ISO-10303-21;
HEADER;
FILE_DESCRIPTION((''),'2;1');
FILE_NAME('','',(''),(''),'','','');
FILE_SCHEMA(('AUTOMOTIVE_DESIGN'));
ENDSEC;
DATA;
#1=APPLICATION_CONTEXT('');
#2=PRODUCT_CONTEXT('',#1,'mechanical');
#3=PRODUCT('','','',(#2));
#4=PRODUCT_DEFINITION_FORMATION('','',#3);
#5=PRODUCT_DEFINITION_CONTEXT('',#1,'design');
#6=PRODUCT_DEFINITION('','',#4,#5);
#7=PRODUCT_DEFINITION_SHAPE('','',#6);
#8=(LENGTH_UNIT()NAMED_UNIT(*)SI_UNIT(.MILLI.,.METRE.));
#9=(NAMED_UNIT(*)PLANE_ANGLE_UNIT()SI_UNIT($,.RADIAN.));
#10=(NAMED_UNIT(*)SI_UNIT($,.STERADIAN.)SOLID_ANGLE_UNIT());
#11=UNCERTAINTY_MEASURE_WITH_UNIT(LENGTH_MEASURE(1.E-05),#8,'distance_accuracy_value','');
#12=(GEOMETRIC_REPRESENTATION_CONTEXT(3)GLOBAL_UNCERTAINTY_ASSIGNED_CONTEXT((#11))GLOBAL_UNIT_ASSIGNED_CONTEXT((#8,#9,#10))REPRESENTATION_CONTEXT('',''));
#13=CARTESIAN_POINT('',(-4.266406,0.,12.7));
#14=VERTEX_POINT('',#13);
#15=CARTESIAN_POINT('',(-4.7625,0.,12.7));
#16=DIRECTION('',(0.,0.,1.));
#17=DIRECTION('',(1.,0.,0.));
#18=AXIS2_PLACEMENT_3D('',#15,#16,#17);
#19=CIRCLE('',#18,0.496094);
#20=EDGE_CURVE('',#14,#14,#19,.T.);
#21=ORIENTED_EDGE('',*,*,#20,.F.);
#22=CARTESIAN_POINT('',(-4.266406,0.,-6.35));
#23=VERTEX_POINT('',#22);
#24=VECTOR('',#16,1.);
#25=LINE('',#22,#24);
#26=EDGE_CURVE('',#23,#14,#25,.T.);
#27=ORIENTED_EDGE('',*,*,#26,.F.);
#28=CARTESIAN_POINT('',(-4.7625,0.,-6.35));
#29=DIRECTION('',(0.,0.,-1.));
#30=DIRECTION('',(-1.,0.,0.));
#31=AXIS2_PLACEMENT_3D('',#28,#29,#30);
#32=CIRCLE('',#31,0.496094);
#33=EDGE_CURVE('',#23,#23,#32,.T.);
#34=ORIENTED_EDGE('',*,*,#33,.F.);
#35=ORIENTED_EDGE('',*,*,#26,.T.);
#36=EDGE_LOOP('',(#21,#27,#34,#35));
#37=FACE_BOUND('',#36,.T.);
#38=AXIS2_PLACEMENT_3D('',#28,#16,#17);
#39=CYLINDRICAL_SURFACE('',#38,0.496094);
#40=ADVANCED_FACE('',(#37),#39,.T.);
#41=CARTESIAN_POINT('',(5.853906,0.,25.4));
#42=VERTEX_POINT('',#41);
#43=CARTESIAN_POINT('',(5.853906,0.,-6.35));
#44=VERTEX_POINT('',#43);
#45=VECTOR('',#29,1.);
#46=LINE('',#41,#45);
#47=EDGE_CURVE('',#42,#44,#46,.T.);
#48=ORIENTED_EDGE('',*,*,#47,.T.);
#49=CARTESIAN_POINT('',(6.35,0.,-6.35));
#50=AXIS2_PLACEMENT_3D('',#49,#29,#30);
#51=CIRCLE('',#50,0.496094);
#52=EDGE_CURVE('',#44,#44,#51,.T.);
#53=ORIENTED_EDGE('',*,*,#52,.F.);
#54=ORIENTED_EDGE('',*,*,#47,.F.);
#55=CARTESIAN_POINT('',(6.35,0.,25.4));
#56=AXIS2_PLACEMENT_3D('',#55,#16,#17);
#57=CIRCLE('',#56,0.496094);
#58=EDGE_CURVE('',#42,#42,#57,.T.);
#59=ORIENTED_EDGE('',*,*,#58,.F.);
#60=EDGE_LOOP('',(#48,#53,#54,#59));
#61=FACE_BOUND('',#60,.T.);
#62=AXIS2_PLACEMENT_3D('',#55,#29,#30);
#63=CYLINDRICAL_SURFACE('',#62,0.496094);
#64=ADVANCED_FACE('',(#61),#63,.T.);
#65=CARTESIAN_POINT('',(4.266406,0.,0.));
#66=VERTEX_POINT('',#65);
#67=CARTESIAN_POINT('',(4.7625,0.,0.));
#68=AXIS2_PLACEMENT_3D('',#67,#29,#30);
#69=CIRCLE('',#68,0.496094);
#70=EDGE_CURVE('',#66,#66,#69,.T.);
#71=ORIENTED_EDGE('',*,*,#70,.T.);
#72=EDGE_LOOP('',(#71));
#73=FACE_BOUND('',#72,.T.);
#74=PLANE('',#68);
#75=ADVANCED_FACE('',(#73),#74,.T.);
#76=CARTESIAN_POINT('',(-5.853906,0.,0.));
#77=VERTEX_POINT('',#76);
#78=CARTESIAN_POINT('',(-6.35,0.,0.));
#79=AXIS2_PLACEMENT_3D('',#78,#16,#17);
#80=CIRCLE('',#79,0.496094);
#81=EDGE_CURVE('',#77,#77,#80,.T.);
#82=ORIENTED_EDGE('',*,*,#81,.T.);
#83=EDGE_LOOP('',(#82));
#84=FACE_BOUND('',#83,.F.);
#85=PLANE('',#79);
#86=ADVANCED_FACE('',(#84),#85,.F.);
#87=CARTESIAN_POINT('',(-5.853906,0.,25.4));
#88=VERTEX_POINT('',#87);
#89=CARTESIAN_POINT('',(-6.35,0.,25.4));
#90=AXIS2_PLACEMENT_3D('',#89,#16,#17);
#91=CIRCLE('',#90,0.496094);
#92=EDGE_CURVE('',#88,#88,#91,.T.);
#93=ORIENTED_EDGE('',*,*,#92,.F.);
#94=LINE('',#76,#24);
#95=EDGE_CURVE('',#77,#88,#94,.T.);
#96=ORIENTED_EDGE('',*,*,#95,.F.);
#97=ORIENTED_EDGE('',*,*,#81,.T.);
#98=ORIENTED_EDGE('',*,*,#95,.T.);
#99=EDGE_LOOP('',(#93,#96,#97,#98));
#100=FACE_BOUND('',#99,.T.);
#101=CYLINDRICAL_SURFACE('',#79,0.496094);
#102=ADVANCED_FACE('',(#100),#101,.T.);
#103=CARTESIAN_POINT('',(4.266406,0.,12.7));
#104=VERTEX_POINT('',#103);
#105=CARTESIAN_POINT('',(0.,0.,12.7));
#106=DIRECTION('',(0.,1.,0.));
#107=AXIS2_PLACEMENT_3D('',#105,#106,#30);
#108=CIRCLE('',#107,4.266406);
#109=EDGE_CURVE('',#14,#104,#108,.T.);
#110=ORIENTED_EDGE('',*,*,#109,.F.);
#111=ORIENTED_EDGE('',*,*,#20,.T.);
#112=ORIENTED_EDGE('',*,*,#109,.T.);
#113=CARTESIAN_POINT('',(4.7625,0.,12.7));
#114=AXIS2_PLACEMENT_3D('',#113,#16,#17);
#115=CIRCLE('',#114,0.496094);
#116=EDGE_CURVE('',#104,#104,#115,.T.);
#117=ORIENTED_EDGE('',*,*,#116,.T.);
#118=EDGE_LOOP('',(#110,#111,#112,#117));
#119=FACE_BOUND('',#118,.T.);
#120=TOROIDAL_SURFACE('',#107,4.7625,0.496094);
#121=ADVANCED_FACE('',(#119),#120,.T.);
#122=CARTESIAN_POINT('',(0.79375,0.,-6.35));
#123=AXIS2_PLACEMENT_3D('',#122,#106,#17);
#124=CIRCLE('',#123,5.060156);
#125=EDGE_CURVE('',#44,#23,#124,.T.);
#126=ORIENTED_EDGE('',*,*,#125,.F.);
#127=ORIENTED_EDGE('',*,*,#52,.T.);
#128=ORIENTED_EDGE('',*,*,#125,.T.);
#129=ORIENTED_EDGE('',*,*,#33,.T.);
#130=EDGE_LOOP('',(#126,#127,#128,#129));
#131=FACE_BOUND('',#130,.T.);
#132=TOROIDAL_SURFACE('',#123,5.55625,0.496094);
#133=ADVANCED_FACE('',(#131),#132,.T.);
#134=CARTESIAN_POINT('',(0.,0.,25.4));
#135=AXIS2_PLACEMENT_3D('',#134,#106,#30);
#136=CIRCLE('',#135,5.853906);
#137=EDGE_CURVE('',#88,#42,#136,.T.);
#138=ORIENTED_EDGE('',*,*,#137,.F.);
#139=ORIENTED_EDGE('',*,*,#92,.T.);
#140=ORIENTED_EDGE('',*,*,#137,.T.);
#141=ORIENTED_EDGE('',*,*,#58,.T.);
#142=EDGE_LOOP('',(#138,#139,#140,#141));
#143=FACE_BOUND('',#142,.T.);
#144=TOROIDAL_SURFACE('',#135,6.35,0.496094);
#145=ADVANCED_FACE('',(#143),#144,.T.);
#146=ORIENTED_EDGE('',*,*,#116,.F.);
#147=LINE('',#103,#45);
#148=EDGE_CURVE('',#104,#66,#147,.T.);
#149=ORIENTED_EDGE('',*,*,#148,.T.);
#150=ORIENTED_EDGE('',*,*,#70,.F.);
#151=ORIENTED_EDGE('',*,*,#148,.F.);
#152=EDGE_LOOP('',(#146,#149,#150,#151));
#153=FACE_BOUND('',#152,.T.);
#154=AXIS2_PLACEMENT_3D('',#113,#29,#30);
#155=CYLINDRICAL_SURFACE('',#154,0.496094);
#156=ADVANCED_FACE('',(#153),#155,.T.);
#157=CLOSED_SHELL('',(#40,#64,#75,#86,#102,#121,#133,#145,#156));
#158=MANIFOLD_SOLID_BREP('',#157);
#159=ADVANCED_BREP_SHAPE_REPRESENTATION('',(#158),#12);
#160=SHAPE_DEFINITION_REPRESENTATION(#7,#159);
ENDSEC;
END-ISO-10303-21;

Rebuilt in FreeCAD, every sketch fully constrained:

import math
import FreeCAD as App
import Part
import Sketcher

V = App.Vector
Q = App.Units.Quantity

doc = App.newDocument("Part")
params = doc.addObject("Spreadsheet::Sheet", "Params")
for row, (alias, value) in enumerate([
    ("sketch2_height", "1 in"),
    ("sketch2_radius", "0.25 in"),
    ("sketch2_height2", "0.5 in"),
    ("sketch2_radius2", "0.21875 in"),
    ("sketch2_height3", "1.25 in"),
], start=1):
    params.set(f"A{row}", alias)
    params.set(f"B{row}", "=" + value)
    params.setAlias(f"B{row}", alias)

body = doc.addObject("PartDesign::Body", "Body")

# Sketch on XY plane
sketch1 = doc.addObject("Sketcher::SketchObject", "Sketch")
body.addObject(sketch1)
sketch1.AttachmentSupport = (doc.XY_Plane, [""])
sketch1.MapMode = "FlatFace"
sketch1.addGeometry(Part.Circle(V(-6.35, 0, 0), V(0, 0, 1), 0.5), False)
sketch1.addConstraint([
    Sketcher.Constraint("PointOnObject", 0, 3, -1),
    Sketcher.Constraint("DistanceX", 0, 3, -1, 1, Q("0.25 in")),
    Sketcher.Constraint("Diameter", 0, 0.992188),
])

# Sketch on XZ plane
sketch2 = doc.addObject("Sketcher::SketchObject", "Sketch001")
body.addObject(sketch2)
sketch2.AttachmentSupport = (doc.XZ_Plane, [""])
sketch2.MapMode = "FlatFace"
sketch2.addGeometry([
    Part.LineSegment(V(-6.3, 0, 0), V(-6.3, 25.4, 0)),  # 0
    Part.ArcOfCircle(Part.Circle(V(0, 25.4, 0), V(0, 0, 1), 6.3), math.radians(0), math.radians(180)),  # 1
    Part.LineSegment(V(6.3, 25.4, 0), V(6.3, -6.3, 0)),  # 2
    Part.ArcOfCircle(Part.Circle(V(0.8, -6.3, 0), V(0, 0, 1), 5.6), math.radians(180), math.radians(360)),  # 3
    Part.LineSegment(V(-4.8, -6.3, 0), V(-4.8, 12.7, 0)),  # 4
    Part.ArcOfCircle(Part.Circle(V(0, 12.7, 0), V(0, 0, 1), 4.8), math.radians(0), math.radians(180)),  # 5
    Part.LineSegment(V(4.8, 12.7, 0), V(4.8, 0, 0)),  # 6
], False)
sketch2.addConstraint([
    Sketcher.Constraint("Tangent", 0, 2, 1, 2),
    Sketcher.Constraint("Tangent", 1, 1, 2, 1),
    Sketcher.Constraint("Tangent", 2, 2, 3, 2),
    Sketcher.Constraint("Tangent", 3, 1, 4, 1),
    Sketcher.Constraint("Tangent", 4, 2, 5, 2),
    Sketcher.Constraint("Tangent", 5, 1, 6, 1),
    Sketcher.Constraint("Vertical", 0),
    Sketcher.Constraint("Vertical", 2),
    Sketcher.Constraint("Vertical", 4),
    Sketcher.Constraint("Vertical", 6),
    Sketcher.Constraint("PointOnObject", 1, 3, -2),
    Sketcher.Constraint("PointOnObject", 5, 3, -2),
    Sketcher.Constraint("PointOnObject", 0, 1, -1),
    Sketcher.Constraint("PointOnObject", 6, 2, -1),
    Sketcher.Constraint("DistanceY", 0, 1, 0, 2, Q("1 in")),
    Sketcher.Constraint("Radius", 1, Q("0.25 in")),
    Sketcher.Constraint("DistanceY", 6, 2, 6, 1, Q("0.5 in")),
    Sketcher.Constraint("Radius", 3, Q("0.21875 in")),
    Sketcher.Constraint("DistanceY", 2, 2, 2, 1, Q("1.25 in")),
])
sketch2.setExpression("Constraints[14]", "Params.sketch2_height")
sketch2.setExpression("Constraints[15]", "Params.sketch2_radius")
sketch2.setExpression("Constraints[16]", "Params.sketch2_height2")
sketch2.setExpression("Constraints[17]", "Params.sketch2_radius2")
sketch2.setExpression("Constraints[18]", "Params.sketch2_height3")
doc.recompute()

additivepipe = doc.addObject("PartDesign::AdditivePipe", "AdditivePipe")
body.addObject(additivepipe)
additivepipe.Profile = sketch1
additivepipe.Spine = (sketch2, ["Edge1", "Edge2", "Edge3", "Edge4", "Edge5", "Edge6", "Edge7"])

doc.recompute()
